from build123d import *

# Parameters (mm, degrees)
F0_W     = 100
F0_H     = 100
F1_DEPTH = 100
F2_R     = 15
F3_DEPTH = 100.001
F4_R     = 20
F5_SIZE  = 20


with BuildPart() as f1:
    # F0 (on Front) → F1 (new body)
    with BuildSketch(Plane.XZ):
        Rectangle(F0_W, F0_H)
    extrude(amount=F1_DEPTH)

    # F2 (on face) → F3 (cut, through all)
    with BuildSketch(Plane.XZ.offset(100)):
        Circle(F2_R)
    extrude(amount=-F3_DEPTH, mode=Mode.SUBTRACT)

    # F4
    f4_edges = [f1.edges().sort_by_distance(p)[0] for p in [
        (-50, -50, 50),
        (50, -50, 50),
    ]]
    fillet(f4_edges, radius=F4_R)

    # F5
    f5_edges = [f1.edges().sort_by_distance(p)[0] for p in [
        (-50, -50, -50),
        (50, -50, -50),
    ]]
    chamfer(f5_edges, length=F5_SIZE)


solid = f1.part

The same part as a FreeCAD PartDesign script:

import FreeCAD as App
import Part
import Sketcher

V = App.Vector


def edges_at(feature, points):
    """Names of the edges that pass closest to the given points."""
    edges = feature.Shape.Edges
    near = lambda p: min(range(len(edges)), key=lambda i: edges[i].distToShape(Part.Vertex(*p))[0])
    return sorted({f"Edge{near(p) + 1}" for p in points})

doc = App.newDocument("Part")
params = doc.addObject("Spreadsheet::Sheet", "Params")
for row, (alias, value) in enumerate([
    ("sketch1_width", "100 mm"),
    ("pad1_length", "100 mm"),
    ("sketch2_diameter", "30 mm"),
    ("fillet_radius", "20 mm"),
    ("chamfer_size", "20 mm"),
], start=1):
    params.set(f"A{row}", alias)
    params.set(f"B{row}", "=" + value)
    params.setAlias(f"B{row}", alias)

body = doc.addObject("PartDesign::Body", "Body")

# Sketch on XZ plane
sketch1 = body.newObject("Sketcher::SketchObject", "Sketch")
sketch1.AttachmentSupport = (doc.getObject("XZ_Plane"), [""])
sketch1.MapMode = "FlatFace"
sketch1.addGeometry([
    Part.LineSegment(V(-50, 50, 0), V(-50, -50, 0)),
    Part.LineSegment(V(-50, -50, 0), V(50, -50, 0)),
    Part.LineSegment(V(50, -50, 0), V(50, 50, 0)),
    Part.LineSegment(V(50, 50, 0), V(-50, 50, 0)),
], False)
sketch1.addConstraint([
    Sketcher.Constraint("Coincident", 0, 2, 1, 1),
    Sketcher.Constraint("Coincident", 1, 2, 2, 1),
    Sketcher.Constraint("Coincident", 2, 2, 3, 1),
    Sketcher.Constraint("Coincident", 3, 2, 0, 1),
    Sketcher.Constraint("Vertical", 0),
    Sketcher.Constraint("Horizontal", 1),
    Sketcher.Constraint("Vertical", 2),
    Sketcher.Constraint("Horizontal", 3),
    Sketcher.Constraint("Symmetric", 0, 2, 2, 2, -1, 1),
    Sketcher.Constraint("Equal", 3, 0),
    Sketcher.Constraint("DistanceX", 1, 1, 1, 2, 100.0),
])
sketch1.setExpression("Constraints[10]", "Params.sketch1_width")
pad1 = body.newObject("PartDesign::Pad", "Pad")
pad1.Profile = sketch1
pad1.setExpression("Length", "Params.pad1_length")

# Sketch on XZ plane
sketch2 = body.newObject("Sketcher::SketchObject", "Sketch001")
sketch2.AttachmentSupport = (doc.getObject("XZ_Plane"), [""])
sketch2.MapMode = "FlatFace"
sketch2.AttachmentOffset = App.Placement(V(0, 0, 100), App.Rotation())
sketch2.addGeometry(Part.Circle(V(0, 0, 0), V(0, 0, 1), 15), False)
sketch2.addConstraint([
    Sketcher.Constraint("Coincident", 0, 3, -1, 1),
    Sketcher.Constraint("Diameter", 0, 30.0),
])
sketch2.setExpression("Constraints[1]", "Params.sketch2_diameter")
pocket1 = body.newObject("PartDesign::Pocket", "Pocket")
pocket1.Profile = sketch2
pocket1.Type = "ThroughAll"
doc.recompute()

fillet = body.newObject("PartDesign::Fillet", "Fillet")
fillet.Base = (pocket1, edges_at(pocket1, [(-50, -50, 50), (50, -50, 50)]))
fillet.setExpression("Radius", "Params.fillet_radius")
doc.recompute()

chamfer = body.newObject("PartDesign::Chamfer", "Chamfer")
chamfer.Base = (fillet, edges_at(fillet, [(-50, -50, -50), (50, -50, -50)]))
chamfer.setExpression("Size", "Params.chamfer_size")

doc.recompute()
